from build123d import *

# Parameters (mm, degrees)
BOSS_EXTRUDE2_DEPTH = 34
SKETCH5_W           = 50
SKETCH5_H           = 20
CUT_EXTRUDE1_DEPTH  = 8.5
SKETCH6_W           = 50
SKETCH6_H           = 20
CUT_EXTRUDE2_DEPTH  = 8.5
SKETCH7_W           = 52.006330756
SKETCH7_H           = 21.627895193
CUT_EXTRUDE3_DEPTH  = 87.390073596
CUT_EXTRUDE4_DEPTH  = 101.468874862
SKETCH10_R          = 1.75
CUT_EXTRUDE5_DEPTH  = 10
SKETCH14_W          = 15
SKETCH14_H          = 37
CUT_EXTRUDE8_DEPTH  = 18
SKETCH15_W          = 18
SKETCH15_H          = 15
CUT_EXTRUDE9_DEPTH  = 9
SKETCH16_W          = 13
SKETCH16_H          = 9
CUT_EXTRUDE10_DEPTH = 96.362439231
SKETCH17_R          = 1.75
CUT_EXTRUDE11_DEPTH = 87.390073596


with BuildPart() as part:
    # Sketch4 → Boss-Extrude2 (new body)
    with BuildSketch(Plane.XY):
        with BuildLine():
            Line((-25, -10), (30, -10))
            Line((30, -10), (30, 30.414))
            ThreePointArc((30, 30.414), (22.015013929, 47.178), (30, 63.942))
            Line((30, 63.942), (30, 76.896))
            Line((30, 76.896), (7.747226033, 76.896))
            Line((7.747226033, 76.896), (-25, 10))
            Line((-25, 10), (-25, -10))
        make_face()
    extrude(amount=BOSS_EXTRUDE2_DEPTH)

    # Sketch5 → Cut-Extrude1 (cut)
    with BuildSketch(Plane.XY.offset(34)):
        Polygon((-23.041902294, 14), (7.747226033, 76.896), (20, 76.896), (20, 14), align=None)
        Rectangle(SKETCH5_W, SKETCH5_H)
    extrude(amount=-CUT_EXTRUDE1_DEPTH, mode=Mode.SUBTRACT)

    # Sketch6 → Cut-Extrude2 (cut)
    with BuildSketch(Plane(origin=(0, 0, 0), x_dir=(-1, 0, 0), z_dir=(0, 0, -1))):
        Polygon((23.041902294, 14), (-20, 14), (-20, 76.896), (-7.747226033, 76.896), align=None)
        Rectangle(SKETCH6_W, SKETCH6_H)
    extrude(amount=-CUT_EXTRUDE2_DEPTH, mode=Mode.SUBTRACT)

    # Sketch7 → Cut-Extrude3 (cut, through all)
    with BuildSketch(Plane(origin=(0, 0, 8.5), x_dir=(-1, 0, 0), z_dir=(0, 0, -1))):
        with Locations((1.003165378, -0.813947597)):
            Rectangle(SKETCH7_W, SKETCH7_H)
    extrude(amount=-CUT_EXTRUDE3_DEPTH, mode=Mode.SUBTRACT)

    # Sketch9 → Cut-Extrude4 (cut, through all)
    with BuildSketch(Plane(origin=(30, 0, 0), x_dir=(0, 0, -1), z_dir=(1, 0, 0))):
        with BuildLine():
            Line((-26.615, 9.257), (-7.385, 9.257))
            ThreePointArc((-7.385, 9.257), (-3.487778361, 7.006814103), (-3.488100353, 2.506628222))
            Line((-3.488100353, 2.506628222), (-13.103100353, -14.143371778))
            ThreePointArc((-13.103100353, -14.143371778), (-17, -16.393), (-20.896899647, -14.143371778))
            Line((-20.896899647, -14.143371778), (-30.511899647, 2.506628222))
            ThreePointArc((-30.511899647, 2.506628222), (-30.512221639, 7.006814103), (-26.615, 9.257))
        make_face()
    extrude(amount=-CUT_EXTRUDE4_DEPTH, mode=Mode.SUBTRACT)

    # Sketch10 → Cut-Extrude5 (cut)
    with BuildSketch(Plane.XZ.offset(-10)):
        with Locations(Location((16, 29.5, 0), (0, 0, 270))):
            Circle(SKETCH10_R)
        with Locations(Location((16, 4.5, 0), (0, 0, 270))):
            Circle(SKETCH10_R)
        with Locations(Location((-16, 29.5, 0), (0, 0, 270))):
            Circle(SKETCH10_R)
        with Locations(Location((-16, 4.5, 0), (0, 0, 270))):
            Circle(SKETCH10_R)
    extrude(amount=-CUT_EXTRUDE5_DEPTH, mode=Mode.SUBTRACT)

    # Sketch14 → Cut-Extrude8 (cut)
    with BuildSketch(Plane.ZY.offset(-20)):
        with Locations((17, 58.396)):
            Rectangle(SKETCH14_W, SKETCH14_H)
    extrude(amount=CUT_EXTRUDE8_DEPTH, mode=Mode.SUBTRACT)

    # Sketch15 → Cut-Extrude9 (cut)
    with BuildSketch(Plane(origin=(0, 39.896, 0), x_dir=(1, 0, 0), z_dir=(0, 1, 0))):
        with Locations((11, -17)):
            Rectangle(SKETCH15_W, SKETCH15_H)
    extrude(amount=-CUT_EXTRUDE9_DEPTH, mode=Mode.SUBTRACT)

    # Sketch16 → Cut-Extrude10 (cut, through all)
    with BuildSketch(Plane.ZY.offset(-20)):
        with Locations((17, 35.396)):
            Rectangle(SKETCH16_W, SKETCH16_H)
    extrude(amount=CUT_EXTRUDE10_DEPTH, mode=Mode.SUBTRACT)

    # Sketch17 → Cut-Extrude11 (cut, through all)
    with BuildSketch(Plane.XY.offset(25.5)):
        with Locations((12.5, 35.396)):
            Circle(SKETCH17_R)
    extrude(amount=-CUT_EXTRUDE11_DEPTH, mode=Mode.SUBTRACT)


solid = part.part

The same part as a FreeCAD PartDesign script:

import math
import FreeCAD as App
import Part
import Sketcher
from FreeCAD import Vector
Q = App.Units.Quantity


def add_polygon(sketch, points):
    """Adds a closed chain of lines whose ends are joined by coincident constraints."""
    first, n = sketch.GeometryCount, len(points)
    for a, b in zip(points, points[1:] + points[:1]):
        sketch.addGeometry(Part.LineSegment(App.Vector(*a, 0), App.Vector(*b, 0)), False)
    for i in range(n):
        sketch.addConstraint(Sketcher.Constraint("Coincident", first + i, 2, first + (i + 1) % n, 1))

doc = App.newDocument("Part")
params = doc.addObject("Spreadsheet::Sheet", "Params")
for row, (alias, value) in enumerate([
    ("sketch1_width", "55 mm"),
    ("sketch1_height", "20 mm"),
    ("sketch1_radius", "21.59 mm"),
    ("pad1_length", "34 mm"),
    ("sketch2_width", "50 mm"),
    ("sketch2_height", "20 mm"),
    ("pocket1_length", "8.5 mm"),
    ("sketch3_width", "50 mm"),
    ("sketch3_height", "20 mm"),
    ("pocket2_length", "8.5 mm"),
    ("sketch5_radius", "4.5 mm"),
    ("sketch5_height", "19.23 mm"),
    ("sketch6_diameter", "3.5 mm"),
    ("pocket5_length", "10 mm"),
    ("sketch7_width", "37 mm"),
    ("sketch7_height", "15 mm"),
    ("pocket6_length", "18 mm"),
    ("sketch8_width", "18 mm"),
    ("sketch8_height", "15 mm"),
    ("pocket7_length", "9 mm"),
    ("sketch9_width", "9 mm"),
    ("sketch9_height", "13 mm"),
    ("sketch10_diameter", "3.5 mm"),
], start=1):
    params.set(f"A{row}", alias)
    params.set(f"B{row}", "=" + value)
    params.setAlias(f"B{row}", alias)

body = doc.addObject("PartDesign::Body", "Body")

sketch1 = body.newObject("Sketcher::SketchObject", "Sketch")
sketch1.AttachmentSupport = (doc.getObject("XY_Plane"), [""])
sketch1.MapMode = "FlatFace"
sketch1.addGeometry(Part.LineSegment(Vector(-25, -10, 0), Vector(30, -10, 0)), False)
sketch1.addGeometry(Part.LineSegment(Vector(30, -10, 0), Vector(30, 30.414, 0)), False)
sketch1.addGeometry(Part.ArcOfCircle(Part.Circle(Vector(43.605014, 47.178, 0), Vector(0, 0, 1), 21.59), math.radians(129.061448), math.radians(230.938552)), False)
sketch1.addGeometry(Part.LineSegment(Vector(30, 63.942, 0), Vector(30, 76.896, 0)), False)
sketch1.addGeometry(Part.LineSegment(Vector(30, 76.896, 0), Vector(7.747226, 76.896, 0)), False)
sketch1.addGeometry(Part.LineSegment(Vector(7.747226, 76.896, 0), Vector(-25, 10, 0)), False)
sketch1.addGeometry(Part.LineSegment(Vector(-25, 10, 0), Vector(-25, -10, 0)), False)
sketch1.addConstraint(Sketcher.Constraint("Coincident", 0, 2, 1, 1))
sketch1.addConstraint(Sketcher.Constraint("Coincident", 1, 2, 2, 2))
sketch1.addConstraint(Sketcher.Constraint("Coincident", 2, 1, 3, 1))
sketch1.addConstraint(Sketcher.Constraint("Coincident", 3, 2, 4, 1))
sketch1.addConstraint(Sketcher.Constraint("Coincident", 4, 2, 5, 1))
sketch1.addConstraint(Sketcher.Constraint("Coincident", 5, 2, 6, 1))
sketch1.addConstraint(Sketcher.Constraint("Coincident", 6, 2, 0, 1))
sketch1.addConstraint(Sketcher.Constraint("Horizontal", 0))
sketch1.addConstraint(Sketcher.Constraint("Vertical", 1))
sketch1.addConstraint(Sketcher.Constraint("Vertical", 3))
sketch1.addConstraint(Sketcher.Constraint("Horizontal", 4))
sketch1.addConstraint(Sketcher.Constraint("Vertical", 6))
sketch1.addConstraint(Sketcher.Constraint("Vertical", 1, 2, 2, 1))
sketch1.addConstraint(Sketcher.Constraint("DistanceX", 0, 1, 0, 2, Q("55 mm")))
sketch1.addConstraint(Sketcher.Constraint("DistanceY", 6, 2, 6, 1, Q("20 mm")))
sketch1.addConstraint(Sketcher.Constraint("Radius", 2, Q("21.59 mm")))
sketch1.addConstraint(Sketcher.Constraint("DistanceX", -1, 1, 0, 2, Q("30 mm")))
sketch1.addConstraint(Sketcher.Constraint("DistanceY", 0, 2, -1, 1, Q("10 mm")))
sketch1.addConstraint(Sketcher.Constraint("DistanceY", 1, 1, 1, 2, Q("40.414 mm")))
sketch1.addConstraint(Sketcher.Constraint("DistanceY", 3, 1, 3, 2, Q("12.954 mm")))
sketch1.addConstraint(Sketcher.Constraint("DistanceY", -1, 1, 2, 3, Q("47.178 mm")))
sketch1.addConstraint(Sketcher.Constraint("DistanceX", 4, 2, 4, 1, Q("22.252774 mm")))
sketch1.setExpression("Constraints[13]", "Params.sketch1_width")
sketch1.setExpression("Constraints[14]", "Params.sketch1_height")
sketch1.setExpression("Constraints[15]", "Params.sketch1_radius")
pad1 = body.newObject("PartDesign::Pad", "Pad")
pad1.Profile = sketch1
pad1.setExpression("Length", "Params.pad1_length")

sketch2 = body.newObject("Sketcher::SketchObject", "Sketch001")
sketch2.AttachmentSupport = (doc.getObject("XY_Plane"), [""])
sketch2.MapMode = "FlatFace"
sketch2.AttachmentOffset = App.Placement(Vector(0, 0, 34), App.Rotation())
add_polygon(sketch2, [(7.747226, 76.896), (-23.041902, 14), (20, 14), (20, 76.896)])
add_polygon(sketch2, [(-25, 10), (-25, -10), (25, -10), (25, 10)])
sketch2.addConstraint(Sketcher.Constraint("Horizontal", 1))
sketch2.addConstraint(Sketcher.Constraint("Vertical", 2))
sketch2.addConstraint(Sketcher.Constraint("Horizontal", 3))
sketch2.addConstraint(Sketcher.Constraint("Vertical", 4))
sketch2.addConstraint(Sketcher.Constraint("Horizontal", 5))
sketch2.addConstraint(Sketcher.Constraint("Vertical", 6))
sketch2.addConstraint(Sketcher.Constraint("Horizontal", 7))
sketch2.addConstraint(Sketcher.Constraint("Symmetric", 4, 2, 6, 2, -1, 1))
sketch2.addConstraint(Sketcher.Constraint("DistanceX", 5, 1, 5, 2, Q("50 mm")))
sketch2.addConstraint(Sketcher.Constraint("DistanceY", 4, 2, 4, 1, Q("20 mm")))
sketch2.addConstraint(Sketcher.Constraint("DistanceY", -1, 1, 0, 2, Q("14 mm")))
sketch2.addConstraint(Sketcher.Constraint("DistanceX", -1, 1, 1, 2, Q("20 mm")))
sketch2.addConstraint(Sketcher.Constraint("DistanceY", 2, 1, 2, 2, Q("62.896 mm")))
sketch2.addConstraint(Sketcher.Constraint("Distance", 0, Q("70.027689 mm")))
sketch2.addConstraint(Sketcher.Constraint("DistanceX", 1, 1, 1, 2, Q("43.041902 mm")))
sketch2.setExpression("Constraints[16]", "Params.sketch2_width")
sketch2.setExpression("Constraints[17]", "Params.sketch2_height")
pocket1 = body.newObject("PartDesign::Pocket", "Pocket")
pocket1.Profile = sketch2
pocket1.setExpression("Length", "Params.pocket1_length")

sketch3 = body.newObject("Sketcher::SketchObject", "Sketch002")
sketch3.AttachmentSupport = (doc.getObject("XY_Plane"), [""])
sketch3.MapMode = "FlatFace"
add_polygon(sketch3, [(20, 14), (-23.041902, 14), (7.747226, 76.896), (20, 76.896)])
add_polygon(sketch3, [(25, 10), (25, -10), (-25, -10), (-25, 10)])
sketch3.addConstraint(Sketcher.Constraint("Horizontal", 0))
sketch3.addConstraint(Sketcher.Constraint("Horizontal", 2))
sketch3.addConstraint(Sketcher.Constraint("Vertical", 3))
sketch3.addConstraint(Sketcher.Constraint("Vertical", 4))
sketch3.addConstraint(Sketcher.Constraint("Horizontal", 5))
sketch3.addConstraint(Sketcher.Constraint("Vertical", 6))
sketch3.addConstraint(Sketcher.Constraint("Horizontal", 7))
sketch3.addConstraint(Sketcher.Constraint("Symmetric", 4, 2, 6, 2, -1, 1))
sketch3.addConstraint(Sketcher.Constraint("DistanceX", 5, 2, 5, 1, Q("50 mm")))
sketch3.addConstraint(Sketcher.Constraint("DistanceY", 4, 2, 4, 1, Q("20 mm")))
sketch3.addConstraint(Sketcher.Constraint("DistanceY", -1, 1, 0, 2, Q("14 mm")))
sketch3.addConstraint(Sketcher.Constraint("DistanceX", -1, 1, 2, 2, Q("20 mm")))
sketch3.addConstraint(Sketcher.Constraint("DistanceY", 3, 2, 3, 1, Q("62.896 mm")))
sketch3.addConstraint(Sketcher.Constraint("Distance", 1, Q("70.027689 mm")))
sketch3.addConstraint(Sketcher.Constraint("DistanceX", 0, 2, 0, 1, Q("43.041902 mm")))
sketch3.setExpression("Constraints[16]", "Params.sketch3_width")
sketch3.setExpression("Constraints[17]", "Params.sketch3_height")
pocket2 = body.newObject("PartDesign::Pocket", "Pocket001")
pocket2.Profile = sketch3
pocket2.setExpression("Length", "Params.pocket2_length")
pocket2.Reversed = True

sketch4 = body.newObject("Sketcher::SketchObject", "Sketch003")
sketch4.AttachmentSupport = (doc.getObject("XY_Plane"), [""])
sketch4.MapMode = "FlatFace"
sketch4.AttachmentOffset = App.Placement(Vector(0, 0, 8.5), App.Rotation())
add_polygon(sketch4, [(25, 10), (25, -11.627895), (-27.006331, -11.627895), (-27.006331, 10)])
sketch4.addConstraint(Sketcher.Constraint("Vertical", 0))
sketch4.addConstraint(Sketcher.Constraint("Horizontal", 1))
sketch4.addConstraint(Sketcher.Constraint("Vertical", 2))
sketch4.addConstraint(Sketcher.Constraint("Horizontal", 3))
sketch4.addConstraint(Sketcher.Constraint("DistanceX", -1, 1, 0, 2, Q("25 mm")))
sketch4.addConstraint(Sketcher.Constraint("DistanceY", -1, 1, 2, 2, Q("10 mm")))
sketch4.addConstraint(Sketcher.Constraint("DistanceX", 1, 2, 1, 1, Q("52.006331 mm")))
sketch4.addConstraint(Sketcher.Constraint("DistanceY", 0, 2, 0, 1, Q("21.627895 mm")))
pocket3 = body.newObject("PartDesign::Pocket", "Pocket002")
pocket3.Profile = sketch4
pocket3.Type = "ThroughAll"
pocket3.Reversed = True

sketch5 = body.newObject("Sketcher::SketchObject", "Sketch004")
sketch5.AttachmentSupport = (doc.getObject("YZ_Plane"), [""])
sketch5.MapMode = "FlatFace"
sketch5.AttachmentOffset = App.Placement(Vector(0, 0, 30), App.Rotation())
sketch5.addGeometry(Part.LineSegment(Vector(9.257, 7.385, 0), Vector(9.257, 26.615, 0)), False)
sketch5.addGeometry(Part.ArcOfCircle(Part.Circle(Vector(4.757, 26.615, 0), Vector(0, 0, 1), 4.5), math.radians(0), math.radians(120.005466)), False)
sketch5.addGeometry(Part.LineSegment(Vector(2.506628, 30.5119, 0), Vector(-14.143372, 20.8969, 0)), False)
sketch5.addGeometry(Part.ArcOfCircle(Part.Circle(Vector(-11.893, 17, 0), Vector(0, 0, 1), 4.5), math.radians(120.005466), math.radians(239.994534)), False)
sketch5.addGeometry(Part.LineSegment(Vector(-14.143372, 13.1031, 0), Vector(2.506628, 3.4881, 0)), False)
sketch5.addGeometry(Part.ArcOfCircle(Part.Circle(Vector(4.757, 7.385, 0), Vector(0, 0, 1), 4.5), math.radians(-120.005466), math.radians(0)), False)
sketch5.addConstraint(Sketcher.Constraint("Tangent", 0, 2, 1, 1))
sketch5.addConstraint(Sketcher.Constraint("Tangent", 1, 2, 2, 1))
sketch5.addConstraint(Sketcher.Constraint("Tangent", 2, 2, 3, 1))
sketch5.addConstraint(Sketcher.Constraint("Tangent", 3, 2, 4, 1))
sketch5.addConstraint(Sketcher.Constraint("Tangent", 4, 2, 5, 1))
sketch5.addConstraint(Sketcher.Constraint("Tangent", 5, 2, 0, 1))
sketch5.addConstraint(Sketcher.Constraint("Vertical", 0))
sketch5.addConstraint(Sketcher.Constraint("Equal", 1, 3))
sketch5.addConstraint(Sketcher.Constraint("Equal", 3, 5))
sketch5.addConstraint(Sketcher.Constraint("Vertical", 2, 2, 3, 2))
sketch5.addConstraint(Sketcher.Constraint("Radius", 1, Q("4.5 mm")))
sketch5.addConstraint(Sketcher.Constraint("DistanceY", -1, 1, 3, 3, Q("17 mm")))
sketch5.addConstraint(Sketcher.Constraint("DistanceY", 0, 1, 0, 2, Q("19.23 mm")))
sketch5.addConstraint(Sketcher.Constraint("DistanceX", 3, 3, 1, 3, Q("16.65 mm")))
sketch5.addConstraint(Sketcher.Constraint("DistanceX", -1, 1, 1, 3, Q("4.757 mm")))
sketch5.setExpression("Constraints[10]", "Params.sketch5_radius")
sketch5.setExpression("Constraints[12]", "Params.sketch5_height")
pocket4 = body.newObject("PartDesign::Pocket", "Pocket003")
pocket4.Profile = sketch5
pocket4.Type = "ThroughAll"

sketch6 = body.newObject("Sketcher::SketchObject", "Sketch005")
sketch6.AttachmentSupport = (doc.getObject("XZ_Plane"), [""])
sketch6.MapMode = "FlatFace"
sketch6.AttachmentOffset = App.Placement(Vector(0, 0, -10), App.Rotation())
sketch6.addGeometry(Part.Circle(Vector(16, 29.5, 0), Vector(0, 0, 1), 1.75), False)
sketch6.addGeometry(Part.Circle(Vector(16, 4.5, 0), Vector(0, 0, 1), 1.75), False)
sketch6.addGeometry(Part.Circle(Vector(-16, 29.5, 0), Vector(0, 0, 1), 1.75), False)
sketch6.addGeometry(Part.Circle(Vector(-16, 4.5, 0), Vector(0, 0, 1), 1.75), False)
sketch6.addConstraint(Sketcher.Constraint("Equal", 0, 1))
sketch6.addConstraint(Sketcher.Constraint("Equal", 1, 2))
sketch6.addConstraint(Sketcher.Constraint("Equal", 2, 3))
sketch6.addConstraint(Sketcher.Constraint("Symmetric", 0, 3, 2, 3, -2))
sketch6.addConstraint(Sketcher.Constraint("Symmetric", 1, 3, 3, 3, -2))
sketch6.addConstraint(Sketcher.Constraint("Vertical", 0, 3, 1, 3))
sketch6.addConstraint(Sketcher.Constraint("Diameter", 0, Q("3.5 mm")))
sketch6.addConstraint(Sketcher.Constraint("DistanceX", -1, 1, 0, 3, Q("16 mm")))
sketch6.addConstraint(Sketcher.Constraint("DistanceY", 1, 3, 0, 3, Q("25 mm")))
sketch6.addConstraint(Sketcher.Constraint("DistanceY", -1, 1, 0, 3, Q("29.5 mm")))
sketch6.setExpression("Constraints[6]", "Params.sketch6_diameter")
pocket5 = body.newObject("PartDesign::Pocket", "Pocket004")
pocket5.Profile = sketch6
pocket5.setExpression("Length", "Params.pocket5_length")

sketch7 = body.newObject("Sketcher::SketchObject", "Sketch006")
sketch7.AttachmentSupport = (doc.getObject("YZ_Plane"), [""])
sketch7.MapMode = "FlatFace"
sketch7.AttachmentOffset = App.Placement(Vector(0, 0, 20), App.Rotation())
add_polygon(sketch7, [(76.896, 9.5), (39.896, 9.5), (39.896, 24.5), (76.896, 24.5)])
sketch7.addConstraint(Sketcher.Constraint("Horizontal", 0))
sketch7.addConstraint(Sketcher.Constraint("Vertical", 1))
sketch7.addConstraint(Sketcher.Constraint("Horizontal", 2))
sketch7.addConstraint(Sketcher.Constraint("Vertical", 3))
sketch7.addConstraint(Sketcher.Constraint("DistanceX", 0, 2, 0, 1, Q("37 mm")))
sketch7.addConstraint(Sketcher.Constraint("DistanceY", 1, 1, 1, 2, Q("15 mm")))
sketch7.addConstraint(Sketcher.Constraint("DistanceY", -1, 1, 0, 2, Q("9.5 mm")))
sketch7.addConstraint(Sketcher.Constraint("DistanceX", -1, 1, 0, 2, Q("39.896 mm")))
sketch7.setExpression("Constraints[8]", "Params.sketch7_width")
sketch7.setExpression("Constraints[9]", "Params.sketch7_height")
pocket6 = body.newObject("PartDesign::Pocket", "Pocket005")
pocket6.Profile = sketch7
pocket6.setExpression("Length", "Params.pocket6_length")

sketch8 = body.newObject("Sketcher::SketchObject", "Sketch007")
sketch8.AttachmentSupport = (doc.getObject("XZ_Plane"), [""])
sketch8.MapMode = "FlatFace"
sketch8.AttachmentOffset = App.Placement(Vector(0, 0, -39.896), App.Rotation())
add_polygon(sketch8, [(2, 9.5), (2, 24.5), (20, 24.5), (20, 9.5)])
sketch8.addConstraint(Sketcher.Constraint("Vertical", 0))
sketch8.addConstraint(Sketcher.Constraint("Horizontal", 1))
sketch8.addConstraint(Sketcher.Constraint("Vertical", 2))
sketch8.addConstraint(Sketcher.Constraint("Horizontal", 3))
sketch8.addConstraint(Sketcher.Constraint("DistanceX", 1, 1, 1, 2, Q("18 mm")))
sketch8.addConstraint(Sketcher.Constraint("DistanceY", 0, 1, 0, 2, Q("15 mm")))
sketch8.addConstraint(Sketcher.Constraint("DistanceX", -1, 1, 0, 2, Q("2 mm")))
sketch8.addConstraint(Sketcher.Constraint("DistanceY", -1, 1, 0, 2, Q("24.5 mm")))
sketch8.setExpression("Constraints[8]", "Params.sketch8_width")
sketch8.setExpression("Constraints[9]", "Params.sketch8_height")
pocket7 = body.newObject("PartDesign::Pocket", "Pocket006")
pocket7.Profile = sketch8
pocket7.setExpression("Length", "Params.pocket7_length")
pocket7.Reversed = True

sketch9 = body.newObject("Sketcher::SketchObject", "Sketch008")
sketch9.AttachmentSupport = (doc.getObject("YZ_Plane"), [""])
sketch9.MapMode = "FlatFace"
sketch9.AttachmentOffset = App.Placement(Vector(0, 0, 20), App.Rotation())
add_polygon(sketch9, [(39.896, 10.5), (30.896, 10.5), (30.896, 23.5), (39.896, 23.5)])
sketch9.addConstraint(Sketcher.Constraint("Horizontal", 0))
sketch9.addConstraint(Sketcher.Constraint("Vertical", 1))
sketch9.addConstraint(Sketcher.Constraint("Horizontal", 2))
sketch9.addConstraint(Sketcher.Constraint("Vertical", 3))
sketch9.addConstraint(Sketcher.Constraint("DistanceX", 0, 2, 0, 1, Q("9 mm")))
sketch9.addConstraint(Sketcher.Constraint("DistanceY", 1, 1, 1, 2, Q("13 mm")))
sketch9.addConstraint(Sketcher.Constraint("DistanceY", -1, 1, 0, 2, Q("10.5 mm")))
sketch9.addConstraint(Sketcher.Constraint("DistanceX", -1, 1, 0, 2, Q("30.896 mm")))
sketch9.setExpression("Constraints[8]", "Params.sketch9_width")
sketch9.setExpression("Constraints[9]", "Params.sketch9_height")
pocket8 = body.newObject("PartDesign::Pocket", "Pocket007")
pocket8.Profile = sketch9
pocket8.Type = "ThroughAll"

sketch10 = body.newObject("Sketcher::SketchObject", "Sketch009")
sketch10.AttachmentSupport = (doc.getObject("XY_Plane"), [""])
sketch10.MapMode = "FlatFace"
sketch10.AttachmentOffset = App.Placement(Vector(0, 0, 25.5), App.Rotation())
sketch10.addGeometry(Part.Circle(Vector(12.5, 35.396, 0), Vector(0, 0, 1), 1.75), False)
sketch10.addConstraint(Sketcher.Constraint("Diameter", 0, Q("3.5 mm")))
sketch10.addConstraint(Sketcher.Constraint("DistanceX", -1, 1, 0, 3, Q("12.5 mm")))
sketch10.addConstraint(Sketcher.Constraint("DistanceY", -1, 1, 0, 3, Q("35.396 mm")))
sketch10.setExpression("Constraints[0]", "Params.sketch10_diameter")
pocket9 = body.newObject("PartDesign::Pocket", "Pocket008")
pocket9.Profile = sketch10
pocket9.Type = "ThroughAll"

doc.recompute()
